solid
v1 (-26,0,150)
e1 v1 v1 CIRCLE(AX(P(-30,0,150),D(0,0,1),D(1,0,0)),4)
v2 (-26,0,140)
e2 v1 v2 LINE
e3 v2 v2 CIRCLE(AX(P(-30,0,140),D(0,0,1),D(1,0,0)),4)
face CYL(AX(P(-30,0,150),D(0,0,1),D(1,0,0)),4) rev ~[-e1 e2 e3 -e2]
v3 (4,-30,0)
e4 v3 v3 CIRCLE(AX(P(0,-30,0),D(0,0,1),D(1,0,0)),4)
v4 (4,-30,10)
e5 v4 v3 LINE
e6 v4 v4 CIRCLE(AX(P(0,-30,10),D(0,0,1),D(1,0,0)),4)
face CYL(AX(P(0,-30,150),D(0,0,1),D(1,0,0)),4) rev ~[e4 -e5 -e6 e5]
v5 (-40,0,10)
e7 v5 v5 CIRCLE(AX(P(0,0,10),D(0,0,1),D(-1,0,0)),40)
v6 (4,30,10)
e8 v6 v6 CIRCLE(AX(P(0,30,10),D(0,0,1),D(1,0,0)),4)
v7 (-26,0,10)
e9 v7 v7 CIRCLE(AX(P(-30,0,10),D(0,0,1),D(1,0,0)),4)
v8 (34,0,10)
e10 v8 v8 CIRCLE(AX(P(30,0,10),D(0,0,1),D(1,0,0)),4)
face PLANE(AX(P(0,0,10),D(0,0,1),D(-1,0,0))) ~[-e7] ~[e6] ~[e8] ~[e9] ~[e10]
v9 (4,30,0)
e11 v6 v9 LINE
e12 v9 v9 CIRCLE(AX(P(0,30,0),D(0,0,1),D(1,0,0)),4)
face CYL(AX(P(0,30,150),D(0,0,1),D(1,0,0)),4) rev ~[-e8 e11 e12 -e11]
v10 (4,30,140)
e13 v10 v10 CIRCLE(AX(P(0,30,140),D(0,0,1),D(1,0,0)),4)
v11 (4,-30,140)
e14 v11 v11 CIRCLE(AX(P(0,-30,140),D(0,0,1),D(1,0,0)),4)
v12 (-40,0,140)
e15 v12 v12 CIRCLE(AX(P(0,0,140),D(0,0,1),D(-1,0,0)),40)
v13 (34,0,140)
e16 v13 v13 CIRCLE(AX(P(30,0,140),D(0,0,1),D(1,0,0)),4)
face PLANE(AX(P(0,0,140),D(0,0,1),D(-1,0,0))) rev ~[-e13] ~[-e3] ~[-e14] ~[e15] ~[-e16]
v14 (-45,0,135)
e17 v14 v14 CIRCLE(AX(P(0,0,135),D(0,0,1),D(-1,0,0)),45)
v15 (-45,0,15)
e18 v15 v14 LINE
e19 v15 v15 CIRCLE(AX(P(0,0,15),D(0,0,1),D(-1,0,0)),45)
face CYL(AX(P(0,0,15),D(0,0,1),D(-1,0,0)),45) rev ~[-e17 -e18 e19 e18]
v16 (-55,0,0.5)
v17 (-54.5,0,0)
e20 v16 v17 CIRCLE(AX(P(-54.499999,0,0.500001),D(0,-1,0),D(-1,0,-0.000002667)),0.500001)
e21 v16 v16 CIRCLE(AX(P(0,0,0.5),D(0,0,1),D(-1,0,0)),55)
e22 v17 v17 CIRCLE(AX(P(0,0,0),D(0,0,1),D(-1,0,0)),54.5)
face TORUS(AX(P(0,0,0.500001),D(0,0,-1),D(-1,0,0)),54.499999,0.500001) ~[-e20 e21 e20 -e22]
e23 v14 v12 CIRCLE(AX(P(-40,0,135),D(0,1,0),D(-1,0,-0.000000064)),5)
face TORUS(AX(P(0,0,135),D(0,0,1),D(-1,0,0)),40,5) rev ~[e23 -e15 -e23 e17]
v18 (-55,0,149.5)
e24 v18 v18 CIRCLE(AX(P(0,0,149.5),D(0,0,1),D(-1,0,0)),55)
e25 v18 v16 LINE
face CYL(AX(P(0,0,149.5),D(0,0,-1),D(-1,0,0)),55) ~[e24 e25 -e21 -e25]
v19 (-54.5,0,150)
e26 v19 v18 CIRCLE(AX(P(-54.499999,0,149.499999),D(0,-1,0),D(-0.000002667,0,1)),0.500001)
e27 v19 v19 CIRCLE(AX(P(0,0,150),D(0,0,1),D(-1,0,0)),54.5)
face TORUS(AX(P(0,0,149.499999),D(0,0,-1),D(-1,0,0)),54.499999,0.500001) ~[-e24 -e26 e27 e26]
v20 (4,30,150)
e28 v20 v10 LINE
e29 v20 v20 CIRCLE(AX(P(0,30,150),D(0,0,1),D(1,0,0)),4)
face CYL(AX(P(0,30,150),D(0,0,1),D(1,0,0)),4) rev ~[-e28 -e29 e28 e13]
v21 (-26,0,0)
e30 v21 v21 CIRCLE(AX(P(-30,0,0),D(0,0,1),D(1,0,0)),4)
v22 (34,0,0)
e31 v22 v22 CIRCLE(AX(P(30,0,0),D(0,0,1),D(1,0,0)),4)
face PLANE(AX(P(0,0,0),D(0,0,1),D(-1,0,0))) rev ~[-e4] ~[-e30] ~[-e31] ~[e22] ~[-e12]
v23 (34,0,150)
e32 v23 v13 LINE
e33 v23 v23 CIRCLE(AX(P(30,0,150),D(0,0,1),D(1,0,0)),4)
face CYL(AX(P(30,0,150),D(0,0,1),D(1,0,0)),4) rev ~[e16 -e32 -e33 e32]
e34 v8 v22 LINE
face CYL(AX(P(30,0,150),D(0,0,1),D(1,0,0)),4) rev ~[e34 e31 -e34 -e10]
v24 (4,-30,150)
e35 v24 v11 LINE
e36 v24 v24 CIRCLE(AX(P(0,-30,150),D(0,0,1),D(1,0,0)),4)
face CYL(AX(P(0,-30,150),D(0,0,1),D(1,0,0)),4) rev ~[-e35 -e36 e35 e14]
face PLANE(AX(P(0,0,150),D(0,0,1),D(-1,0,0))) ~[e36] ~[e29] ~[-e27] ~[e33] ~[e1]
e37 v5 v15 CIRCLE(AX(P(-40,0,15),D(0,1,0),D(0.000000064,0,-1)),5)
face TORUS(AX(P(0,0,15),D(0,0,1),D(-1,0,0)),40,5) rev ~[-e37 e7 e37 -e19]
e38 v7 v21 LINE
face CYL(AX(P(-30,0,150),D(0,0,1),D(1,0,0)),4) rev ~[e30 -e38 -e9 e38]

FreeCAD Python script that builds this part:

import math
import FreeCAD as App
import Part
import Sketcher

doc = App.newDocument("Part")
body = doc.addObject("PartDesign::Body", "Body")

sketch1 = body.newObject("Sketcher::SketchObject", "Sketch")
sketch1.AttachmentSupport = (doc.getObject("XZ_Plane"), [""])
sketch1.MapMode = "FlatFace"
sketch1.addGeometry([
    Part.LineSegment(App.Vector(-54.5, 0, 0), App.Vector(0, 0, 0)),
    Part.LineSegment(App.Vector(0, 0, 0), App.Vector(0, 10, 0)),
    Part.LineSegment(App.Vector(0, 10, 0), App.Vector(-40, 10, 0)),
    Part.ArcOfCircle(Part.Circle(App.Vector(-40, 15, 0), App.Vector(0, 0, 1), 5), math.radians(180), math.radians(270)),
    Part.LineSegment(App.Vector(-45, 15, 0), App.Vector(-45, 135, 0)),
    Part.ArcOfCircle(Part.Circle(App.Vector(-40, 135, 0), App.Vector(0, 0, 1), 5), math.radians(90), math.radians(180)),
    Part.LineSegment(App.Vector(-40, 140, 0), App.Vector(0, 140, 0)),
    Part.LineSegment(App.Vector(0, 140, 0), App.Vector(0, 150, 0)),
    Part.LineSegment(App.Vector(0, 150, 0), App.Vector(-54.5, 150, 0)),
    Part.ArcOfCircle(Part.Circle(App.Vector(-54.5, 149.5, 0), App.Vector(0, 0, 1), 0.5), math.radians(90), math.radians(180)),
    Part.LineSegment(App.Vector(-55, 149.5, 0), App.Vector(-55, 0.5, 0)),
    Part.ArcOfCircle(Part.Circle(App.Vector(-54.5, 0.5, 0), App.Vector(0, 0, 1), 0.5), math.radians(-180), math.radians(-90)),
], False)
sketch1.addConstraint([
    Sketcher.Constraint("Coincident", 0, 2, 1, 1),
    Sketcher.Constraint("Coincident", 1, 2, 2, 1),
    Sketcher.Constraint("Tangent", 2, 2, 3, 2),
    Sketcher.Constraint("Tangent", 3, 1, 4, 1),
    Sketcher.Constraint("Tangent", 4, 2, 5, 2),
    Sketcher.Constraint("Tangent", 5, 1, 6, 1),
    Sketcher.Constraint("Coincident", 6, 2, 7, 1),
    Sketcher.Constraint("Coincident", 7, 2, 8, 1),
    Sketcher.Constraint("Coincident", 8, 2, 9, 1),
    Sketcher.Constraint("Coincident", 9, 2, 10, 1),
    Sketcher.Constraint("Coincident", 10, 2, 11, 1),
    Sketcher.Constraint("Coincident", 11, 2, 0, 1),
    Sketcher.Constraint("Horizontal", 0),
    Sketcher.Constraint("Vertical", 1),
    Sketcher.Constraint("Horizontal", 2),
    Sketcher.Constraint("Vertical", 4),
    Sketcher.Constraint("Horizontal", 6),
    Sketcher.Constraint("Vertical", 7),
    Sketcher.Constraint("Horizontal", 8),
    Sketcher.Constraint("Vertical", 10),
    Sketcher.Constraint("Coincident", 0, 2, -1, 1),
    Sketcher.Constraint("Equal", 3, 5),
    Sketcher.Constraint("Equal", 9, 11),
    Sketcher.Constraint("PointOnObject", 6, 2, -2),
    Sketcher.Constraint("Horizontal", 11, 3, 10, 2),
    Sketcher.Constraint("Vertical", 11, 3, 8, 2),
    Sketcher.Constraint("Vertical", 8, 2, 11, 2),
    Sketcher.Constraint("Equal", 1, 7),
    Sketcher.Constraint("Radius", 3, 5.0),
    Sketcher.Constraint("Radius", 9, 0.500001),
    Sketcher.Constraint("DistanceX", 2, 2, 2, 1, 40.0),
    Sketcher.Constraint("DistanceY", 1, 1, 1, 2, 10.0),
    Sketcher.Constraint("DistanceY", 4, 1, 4, 2, 120.0),
    Sketcher.Constraint("DistanceY", 10, 2, 10, 1, 149.0),
    Sketcher.Constraint("DistanceX", 0, 1, 0, 2, 54.5),
])
revolution = body.newObject("PartDesign::Revolution", "Revolution")
revolution.Profile = sketch1
revolution.ReferenceAxis = (sketch1, ["V_Axis"])
revolution.Angle = 360

sketch2 = body.newObject("Sketcher::SketchObject", "Sketch001")
sketch2.AttachmentSupport = (doc.getObject("XY_Plane"), [""])
sketch2.MapMode = "FlatFace"
sketch2.AttachmentOffset = App.Placement(App.Vector(0, 0, 150), App.Rotation())
sketch2.addGeometry([
    Part.Circle(App.Vector(30, 0, 0), App.Vector(0, 0, 1), 4),
    Part.Circle(App.Vector(0, 30, 0), App.Vector(0, 0, 1), 4),
    Part.Circle(App.Vector(-30, 0, 0), App.Vector(0, 0, 1), 4),
    Part.Circle(App.Vector(0, -30, 0), App.Vector(0, 0, 1), 4),
], False)
sketch2.addConstraint([
    Sketcher.Constraint("Equal", 0, 1),
    Sketcher.Constraint("Equal", 1, 2),
    Sketcher.Constraint("Equal", 2, 3),
    Sketcher.Constraint("Symmetric", 0, 3, 2, 3, -1, 1),
    Sketcher.Constraint("Symmetric", 1, 3, 3, 3, -1, 1),
    Sketcher.Constraint("PointOnObject", 0, 3, -1),
    Sketcher.Constraint("PointOnObject", 1, 3, -2),
    Sketcher.Constraint("Diameter", 0, 8.0),
    Sketcher.Constraint("DistanceX", -1, 1, 0, 3, 30.0),
    Sketcher.Constraint("DistanceY", -1, 1, 1, 3, 30.0),
])
pocket1 = body.newObject("PartDesign::Pocket", "Pocket")
pocket1.Profile = sketch2
pocket1.Type = "ThroughAll"

doc.recompute()
